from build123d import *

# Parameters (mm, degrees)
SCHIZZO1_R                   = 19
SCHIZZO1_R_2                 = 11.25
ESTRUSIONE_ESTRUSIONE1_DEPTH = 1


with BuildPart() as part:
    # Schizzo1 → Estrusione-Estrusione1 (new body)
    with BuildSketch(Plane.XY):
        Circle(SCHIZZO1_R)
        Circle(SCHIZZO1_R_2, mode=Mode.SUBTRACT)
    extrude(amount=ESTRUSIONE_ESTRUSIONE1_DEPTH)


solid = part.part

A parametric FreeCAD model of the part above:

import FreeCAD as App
import Part
import Sketcher

V = App.Vector

doc = App.newDocument("Part")
body = doc.addObject("PartDesign::Body", "Body")

# Sketch on XY plane
sketch1 = body.newObject("Sketcher::SketchObject", "Sketch")
sketch1.AttachmentSupport = (doc.getObject("XY_Plane"), [""])
sketch1.MapMode = "FlatFace"
sketch1.addGeometry(Part.Circle(V(0, 0, 0), V(0, 0, 1), 19), False)
sketch1.addGeometry(Part.Circle(V(0, 0, 0), V(0, 0, 1), 11), False)
sketch1.addConstraint(Sketcher.Constraint("Coincident", 0, 3, -1, 1))
sketch1.addConstraint(Sketcher.Constraint("Coincident", 1, 3, -1, 1))
sketch1.addConstraint(Sketcher.Constraint("Diameter", 0, 38.0))
sketch1.addConstraint(Sketcher.Constraint("Diameter", 1, 22.5))
pad1 = body.newObject("PartDesign::Pad", "Pad")
pad1.Profile = sketch1
pad1.Length = 1

doc.recompute()
